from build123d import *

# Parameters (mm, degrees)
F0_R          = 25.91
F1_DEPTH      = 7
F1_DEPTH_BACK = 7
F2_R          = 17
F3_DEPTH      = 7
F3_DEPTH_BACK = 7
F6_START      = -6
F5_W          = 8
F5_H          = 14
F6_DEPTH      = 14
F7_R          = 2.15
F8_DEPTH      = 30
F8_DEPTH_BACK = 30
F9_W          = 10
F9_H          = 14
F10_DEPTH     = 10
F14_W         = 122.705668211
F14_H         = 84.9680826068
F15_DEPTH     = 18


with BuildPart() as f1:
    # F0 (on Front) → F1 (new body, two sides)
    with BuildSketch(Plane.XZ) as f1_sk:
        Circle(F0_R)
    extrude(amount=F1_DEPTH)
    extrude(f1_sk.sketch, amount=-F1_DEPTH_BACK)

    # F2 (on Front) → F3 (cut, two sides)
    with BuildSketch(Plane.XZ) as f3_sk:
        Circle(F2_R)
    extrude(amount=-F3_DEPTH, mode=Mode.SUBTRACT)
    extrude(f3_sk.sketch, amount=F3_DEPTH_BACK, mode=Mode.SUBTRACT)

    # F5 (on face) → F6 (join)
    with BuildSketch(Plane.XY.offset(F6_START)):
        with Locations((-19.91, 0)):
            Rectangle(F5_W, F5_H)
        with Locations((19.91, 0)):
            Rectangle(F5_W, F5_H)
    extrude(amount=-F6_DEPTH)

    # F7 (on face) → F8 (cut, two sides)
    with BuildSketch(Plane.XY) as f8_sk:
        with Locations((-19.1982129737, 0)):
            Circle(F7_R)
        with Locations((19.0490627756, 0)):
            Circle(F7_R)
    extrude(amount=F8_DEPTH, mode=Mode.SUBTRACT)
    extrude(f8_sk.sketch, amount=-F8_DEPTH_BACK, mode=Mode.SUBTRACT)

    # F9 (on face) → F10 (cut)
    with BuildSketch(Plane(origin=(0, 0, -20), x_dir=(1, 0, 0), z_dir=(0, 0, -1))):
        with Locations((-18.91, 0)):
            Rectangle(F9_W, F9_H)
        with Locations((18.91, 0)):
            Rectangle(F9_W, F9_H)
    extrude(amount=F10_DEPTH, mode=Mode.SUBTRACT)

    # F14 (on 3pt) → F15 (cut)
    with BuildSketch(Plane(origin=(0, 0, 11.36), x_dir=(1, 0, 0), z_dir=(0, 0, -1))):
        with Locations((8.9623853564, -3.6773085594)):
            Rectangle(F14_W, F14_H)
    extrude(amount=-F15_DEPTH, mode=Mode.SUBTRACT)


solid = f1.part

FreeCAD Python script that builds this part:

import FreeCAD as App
import Part
import Sketcher

V = App.Vector


def add_polygon(sketch, points):
    """Adds a closed chain of lines whose ends are joined by coincident constraints."""
    first, n = sketch.GeometryCount, len(points)
    for a, b in zip(points, points[1:] + points[:1]):
        sketch.addGeometry(Part.LineSegment(App.Vector(*a, 0), App.Vector(*b, 0)), False)
    for i in range(n):
        sketch.addConstraint(Sketcher.Constraint("Coincident", first + i, 2, first + (i + 1) % n, 1))

doc = App.newDocument("Part")
body = doc.addObject("PartDesign::Body", "Body")

sketch1 = body.newObject("Sketcher::SketchObject", "Sketch")
sketch1.AttachmentSupport = (doc.getObject("XZ_Plane"), [""])
sketch1.MapMode = "FlatFace"
sketch1.addGeometry(Part.Circle(V(0, 0, 0), V(0, 0, 1), 26), False)
sketch1.addConstraint(Sketcher.Constraint("Coincident", 0, 3, -1, 1))
sketch1.addConstraint(Sketcher.Constraint("Diameter", 0, 51.82))
pad1 = body.newObject("PartDesign::Pad", "Pad")
pad1.Profile = sketch1
pad1.Type = "TwoLengths"
pad1.Length = 7
pad1.Length2 = 7

sketch2 = body.newObject("Sketcher::SketchObject", "Sketch001")
sketch2.AttachmentSupport = (doc.getObject("XZ_Plane"), [""])
sketch2.MapMode = "FlatFace"
sketch2.addGeometry(Part.Circle(V(0, 0, 0), V(0, 0, 1), 17), False)
sketch2.addConstraint(Sketcher.Constraint("Coincident", 0, 3, -1, 1))
sketch2.addConstraint(Sketcher.Constraint("Diameter", 0, 34.0))
pocket1 = body.newObject("PartDesign::Pocket", "Pocket")
pocket1.Profile = sketch2
pocket1.Type = "ThroughAll"
pocket1.Midplane = True

sketch3 = body.newObject("Sketcher::SketchObject", "Sketch002")
sketch3.AttachmentSupport = (doc.getObject("XY_Plane"), [""])
sketch3.MapMode = "FlatFace"
sketch3.AttachmentOffset = App.Placement(V(0, 0, -6), App.Rotation())
add_polygon(sketch3, [(-24, 7), (-24, -7), (-16, -7), (-16, 7)])
add_polygon(sketch3, [(16, 7), (16, -7), (24, -7), (24, 7)])
sketch3.addConstraint(Sketcher.Constraint("Vertical", 0))
sketch3.addConstraint(Sketcher.Constraint("Horizontal", 1))
sketch3.addConstraint(Sketcher.Constraint("Vertical", 2))
sketch3.addConstraint(Sketcher.Constraint("Horizontal", 3))
sketch3.addConstraint(Sketcher.Constraint("Vertical", 4))
sketch3.addConstraint(Sketcher.Constraint("Horizontal", 5))
sketch3.addConstraint(Sketcher.Constraint("Vertical", 6))
sketch3.addConstraint(Sketcher.Constraint("Horizontal", 7))
sketch3.addConstraint(Sketcher.Constraint("Symmetric", 2, 2, 4, 2, -1, 1))
sketch3.addConstraint(Sketcher.Constraint("Symmetric", 0, 2, 6, 2, -1, 1))
sketch3.addConstraint(Sketcher.Constraint("Horizontal", 1, 2, 4, 2))
sketch3.addConstraint(Sketcher.Constraint("DistanceX", 1, 1, 1, 2, 8.0))
sketch3.addConstraint(Sketcher.Constraint("DistanceY", 0, 2, 0, 1, 14.0))
sketch3.addConstraint(Sketcher.Constraint("DistanceX", 0, 2, -1, 1, 23.91))
pad2 = body.newObject("PartDesign::Pad", "Pad001")
pad2.Profile = sketch3
pad2.Length = 14
pad2.Reversed = True

sketch4 = body.newObject("Sketcher::SketchObject", "Sketch003")
sketch4.AttachmentSupport = (doc.getObject("XY_Plane"), [""])
sketch4.MapMode = "FlatFace"
sketch4.addGeometry(Part.Circle(V(-19.2, 0, 0), V(0, 0, 1), 2.1), False)
sketch4.addGeometry(Part.Circle(V(19, 0, 0), V(0, 0, 1), 2.1), False)
sketch4.addConstraint(Sketcher.Constraint("Equal", 0, 1))
sketch4.addConstraint(Sketcher.Constraint("PointOnObject", 0, 3, -1))
sketch4.addConstraint(Sketcher.Constraint("PointOnObject", 1, 3, -1))
sketch4.addConstraint(Sketcher.Constraint("Diameter", 0, 4.3))
sketch4.addConstraint(Sketcher.Constraint("DistanceX", 0, 3, -1, 1, 19.198213))
sketch4.addConstraint(Sketcher.Constraint("DistanceX", -1, 1, 1, 3, 19.049063))
pocket2 = body.newObject("PartDesign::Pocket", "Pocket001")
pocket2.Profile = sketch4
pocket2.Type = "ThroughAll"
pocket2.Midplane = True

sketch5 = body.newObject("Sketcher::SketchObject", "Sketch004")
sketch5.AttachmentSupport = (doc.getObject("XY_Plane"), [""])
sketch5.MapMode = "FlatFace"
sketch5.AttachmentOffset = App.Placement(V(0, 0, -20), App.Rotation())
add_polygon(sketch5, [(-24, -7), (-24, 7), (-14, 7), (-14, -7)])
add_polygon(sketch5, [(14, -7), (14, 7), (24, 7), (24, -7)])
sketch5.addConstraint(Sketcher.Constraint("Vertical", 0))
sketch5.addConstraint(Sketcher.Constraint("Horizontal", 1))
sketch5.addConstraint(Sketcher.Constraint("Vertical", 2))
sketch5.addConstraint(Sketcher.Constraint("Horizontal", 3))
sketch5.addConstraint(Sketcher.Constraint("Vertical", 4))
sketch5.addConstraint(Sketcher.Constraint("Horizontal", 5))
sketch5.addConstraint(Sketcher.Constraint("Vertical", 6))
sketch5.addConstraint(Sketcher.Constraint("Horizontal", 7))
sketch5.addConstraint(Sketcher.Constraint("Symmetric", 2, 2, 4, 2, -1, 1))
sketch5.addConstraint(Sketcher.Constraint("Symmetric", 0, 2, 6, 2, -1, 1))
sketch5.addConstraint(Sketcher.Constraint("Horizontal", 1, 2, 4, 2))
sketch5.addConstraint(Sketcher.Constraint("DistanceX", 1, 1, 1, 2, 10.0))
sketch5.addConstraint(Sketcher.Constraint("DistanceY", 0, 1, 0, 2, 14.0))
sketch5.addConstraint(Sketcher.Constraint("DistanceX", 0, 2, -1, 1, 23.91))
pocket3 = body.newObject("PartDesign::Pocket", "Pocket002")
pocket3.Profile = sketch5
pocket3.Length = 10

sketch6 = body.newObject("Sketcher::SketchObject", "Sketch005")
sketch6.AttachmentSupport = (doc.getObject("XY_Plane"), [""])
sketch6.MapMode = "FlatFace"
sketch6.AttachmentOffset = App.Placement(V(0, 0, 11.36), App.Rotation())
add_polygon(sketch6, [(-52, -39), (-52, 46), (70, 46), (70, -39)])
sketch6.addConstraint(Sketcher.Constraint("Vertical", 0))
sketch6.addConstraint(Sketcher.Constraint("Horizontal", 1))
sketch6.addConstraint(Sketcher.Constraint("Vertical", 2))
sketch6.addConstraint(Sketcher.Constraint("Horizontal", 3))
sketch6.addConstraint(Sketcher.Constraint("DistanceX", 1, 1, 1, 2, 122.705668))
sketch6.addConstraint(Sketcher.Constraint("DistanceY", 0, 1, 0, 2, 84.968083))
sketch6.addConstraint(Sketcher.Constraint("DistanceX", 0, 2, -1, 1, 52.390449))
sketch6.addConstraint(Sketcher.Constraint("DistanceY", -1, 1, 0, 2, 46.16135))
pocket4 = body.newObject("PartDesign::Pocket", "Pocket003")
pocket4.Profile = sketch6
pocket4.Length = 18
pocket4.Reversed = True

doc.recompute()
